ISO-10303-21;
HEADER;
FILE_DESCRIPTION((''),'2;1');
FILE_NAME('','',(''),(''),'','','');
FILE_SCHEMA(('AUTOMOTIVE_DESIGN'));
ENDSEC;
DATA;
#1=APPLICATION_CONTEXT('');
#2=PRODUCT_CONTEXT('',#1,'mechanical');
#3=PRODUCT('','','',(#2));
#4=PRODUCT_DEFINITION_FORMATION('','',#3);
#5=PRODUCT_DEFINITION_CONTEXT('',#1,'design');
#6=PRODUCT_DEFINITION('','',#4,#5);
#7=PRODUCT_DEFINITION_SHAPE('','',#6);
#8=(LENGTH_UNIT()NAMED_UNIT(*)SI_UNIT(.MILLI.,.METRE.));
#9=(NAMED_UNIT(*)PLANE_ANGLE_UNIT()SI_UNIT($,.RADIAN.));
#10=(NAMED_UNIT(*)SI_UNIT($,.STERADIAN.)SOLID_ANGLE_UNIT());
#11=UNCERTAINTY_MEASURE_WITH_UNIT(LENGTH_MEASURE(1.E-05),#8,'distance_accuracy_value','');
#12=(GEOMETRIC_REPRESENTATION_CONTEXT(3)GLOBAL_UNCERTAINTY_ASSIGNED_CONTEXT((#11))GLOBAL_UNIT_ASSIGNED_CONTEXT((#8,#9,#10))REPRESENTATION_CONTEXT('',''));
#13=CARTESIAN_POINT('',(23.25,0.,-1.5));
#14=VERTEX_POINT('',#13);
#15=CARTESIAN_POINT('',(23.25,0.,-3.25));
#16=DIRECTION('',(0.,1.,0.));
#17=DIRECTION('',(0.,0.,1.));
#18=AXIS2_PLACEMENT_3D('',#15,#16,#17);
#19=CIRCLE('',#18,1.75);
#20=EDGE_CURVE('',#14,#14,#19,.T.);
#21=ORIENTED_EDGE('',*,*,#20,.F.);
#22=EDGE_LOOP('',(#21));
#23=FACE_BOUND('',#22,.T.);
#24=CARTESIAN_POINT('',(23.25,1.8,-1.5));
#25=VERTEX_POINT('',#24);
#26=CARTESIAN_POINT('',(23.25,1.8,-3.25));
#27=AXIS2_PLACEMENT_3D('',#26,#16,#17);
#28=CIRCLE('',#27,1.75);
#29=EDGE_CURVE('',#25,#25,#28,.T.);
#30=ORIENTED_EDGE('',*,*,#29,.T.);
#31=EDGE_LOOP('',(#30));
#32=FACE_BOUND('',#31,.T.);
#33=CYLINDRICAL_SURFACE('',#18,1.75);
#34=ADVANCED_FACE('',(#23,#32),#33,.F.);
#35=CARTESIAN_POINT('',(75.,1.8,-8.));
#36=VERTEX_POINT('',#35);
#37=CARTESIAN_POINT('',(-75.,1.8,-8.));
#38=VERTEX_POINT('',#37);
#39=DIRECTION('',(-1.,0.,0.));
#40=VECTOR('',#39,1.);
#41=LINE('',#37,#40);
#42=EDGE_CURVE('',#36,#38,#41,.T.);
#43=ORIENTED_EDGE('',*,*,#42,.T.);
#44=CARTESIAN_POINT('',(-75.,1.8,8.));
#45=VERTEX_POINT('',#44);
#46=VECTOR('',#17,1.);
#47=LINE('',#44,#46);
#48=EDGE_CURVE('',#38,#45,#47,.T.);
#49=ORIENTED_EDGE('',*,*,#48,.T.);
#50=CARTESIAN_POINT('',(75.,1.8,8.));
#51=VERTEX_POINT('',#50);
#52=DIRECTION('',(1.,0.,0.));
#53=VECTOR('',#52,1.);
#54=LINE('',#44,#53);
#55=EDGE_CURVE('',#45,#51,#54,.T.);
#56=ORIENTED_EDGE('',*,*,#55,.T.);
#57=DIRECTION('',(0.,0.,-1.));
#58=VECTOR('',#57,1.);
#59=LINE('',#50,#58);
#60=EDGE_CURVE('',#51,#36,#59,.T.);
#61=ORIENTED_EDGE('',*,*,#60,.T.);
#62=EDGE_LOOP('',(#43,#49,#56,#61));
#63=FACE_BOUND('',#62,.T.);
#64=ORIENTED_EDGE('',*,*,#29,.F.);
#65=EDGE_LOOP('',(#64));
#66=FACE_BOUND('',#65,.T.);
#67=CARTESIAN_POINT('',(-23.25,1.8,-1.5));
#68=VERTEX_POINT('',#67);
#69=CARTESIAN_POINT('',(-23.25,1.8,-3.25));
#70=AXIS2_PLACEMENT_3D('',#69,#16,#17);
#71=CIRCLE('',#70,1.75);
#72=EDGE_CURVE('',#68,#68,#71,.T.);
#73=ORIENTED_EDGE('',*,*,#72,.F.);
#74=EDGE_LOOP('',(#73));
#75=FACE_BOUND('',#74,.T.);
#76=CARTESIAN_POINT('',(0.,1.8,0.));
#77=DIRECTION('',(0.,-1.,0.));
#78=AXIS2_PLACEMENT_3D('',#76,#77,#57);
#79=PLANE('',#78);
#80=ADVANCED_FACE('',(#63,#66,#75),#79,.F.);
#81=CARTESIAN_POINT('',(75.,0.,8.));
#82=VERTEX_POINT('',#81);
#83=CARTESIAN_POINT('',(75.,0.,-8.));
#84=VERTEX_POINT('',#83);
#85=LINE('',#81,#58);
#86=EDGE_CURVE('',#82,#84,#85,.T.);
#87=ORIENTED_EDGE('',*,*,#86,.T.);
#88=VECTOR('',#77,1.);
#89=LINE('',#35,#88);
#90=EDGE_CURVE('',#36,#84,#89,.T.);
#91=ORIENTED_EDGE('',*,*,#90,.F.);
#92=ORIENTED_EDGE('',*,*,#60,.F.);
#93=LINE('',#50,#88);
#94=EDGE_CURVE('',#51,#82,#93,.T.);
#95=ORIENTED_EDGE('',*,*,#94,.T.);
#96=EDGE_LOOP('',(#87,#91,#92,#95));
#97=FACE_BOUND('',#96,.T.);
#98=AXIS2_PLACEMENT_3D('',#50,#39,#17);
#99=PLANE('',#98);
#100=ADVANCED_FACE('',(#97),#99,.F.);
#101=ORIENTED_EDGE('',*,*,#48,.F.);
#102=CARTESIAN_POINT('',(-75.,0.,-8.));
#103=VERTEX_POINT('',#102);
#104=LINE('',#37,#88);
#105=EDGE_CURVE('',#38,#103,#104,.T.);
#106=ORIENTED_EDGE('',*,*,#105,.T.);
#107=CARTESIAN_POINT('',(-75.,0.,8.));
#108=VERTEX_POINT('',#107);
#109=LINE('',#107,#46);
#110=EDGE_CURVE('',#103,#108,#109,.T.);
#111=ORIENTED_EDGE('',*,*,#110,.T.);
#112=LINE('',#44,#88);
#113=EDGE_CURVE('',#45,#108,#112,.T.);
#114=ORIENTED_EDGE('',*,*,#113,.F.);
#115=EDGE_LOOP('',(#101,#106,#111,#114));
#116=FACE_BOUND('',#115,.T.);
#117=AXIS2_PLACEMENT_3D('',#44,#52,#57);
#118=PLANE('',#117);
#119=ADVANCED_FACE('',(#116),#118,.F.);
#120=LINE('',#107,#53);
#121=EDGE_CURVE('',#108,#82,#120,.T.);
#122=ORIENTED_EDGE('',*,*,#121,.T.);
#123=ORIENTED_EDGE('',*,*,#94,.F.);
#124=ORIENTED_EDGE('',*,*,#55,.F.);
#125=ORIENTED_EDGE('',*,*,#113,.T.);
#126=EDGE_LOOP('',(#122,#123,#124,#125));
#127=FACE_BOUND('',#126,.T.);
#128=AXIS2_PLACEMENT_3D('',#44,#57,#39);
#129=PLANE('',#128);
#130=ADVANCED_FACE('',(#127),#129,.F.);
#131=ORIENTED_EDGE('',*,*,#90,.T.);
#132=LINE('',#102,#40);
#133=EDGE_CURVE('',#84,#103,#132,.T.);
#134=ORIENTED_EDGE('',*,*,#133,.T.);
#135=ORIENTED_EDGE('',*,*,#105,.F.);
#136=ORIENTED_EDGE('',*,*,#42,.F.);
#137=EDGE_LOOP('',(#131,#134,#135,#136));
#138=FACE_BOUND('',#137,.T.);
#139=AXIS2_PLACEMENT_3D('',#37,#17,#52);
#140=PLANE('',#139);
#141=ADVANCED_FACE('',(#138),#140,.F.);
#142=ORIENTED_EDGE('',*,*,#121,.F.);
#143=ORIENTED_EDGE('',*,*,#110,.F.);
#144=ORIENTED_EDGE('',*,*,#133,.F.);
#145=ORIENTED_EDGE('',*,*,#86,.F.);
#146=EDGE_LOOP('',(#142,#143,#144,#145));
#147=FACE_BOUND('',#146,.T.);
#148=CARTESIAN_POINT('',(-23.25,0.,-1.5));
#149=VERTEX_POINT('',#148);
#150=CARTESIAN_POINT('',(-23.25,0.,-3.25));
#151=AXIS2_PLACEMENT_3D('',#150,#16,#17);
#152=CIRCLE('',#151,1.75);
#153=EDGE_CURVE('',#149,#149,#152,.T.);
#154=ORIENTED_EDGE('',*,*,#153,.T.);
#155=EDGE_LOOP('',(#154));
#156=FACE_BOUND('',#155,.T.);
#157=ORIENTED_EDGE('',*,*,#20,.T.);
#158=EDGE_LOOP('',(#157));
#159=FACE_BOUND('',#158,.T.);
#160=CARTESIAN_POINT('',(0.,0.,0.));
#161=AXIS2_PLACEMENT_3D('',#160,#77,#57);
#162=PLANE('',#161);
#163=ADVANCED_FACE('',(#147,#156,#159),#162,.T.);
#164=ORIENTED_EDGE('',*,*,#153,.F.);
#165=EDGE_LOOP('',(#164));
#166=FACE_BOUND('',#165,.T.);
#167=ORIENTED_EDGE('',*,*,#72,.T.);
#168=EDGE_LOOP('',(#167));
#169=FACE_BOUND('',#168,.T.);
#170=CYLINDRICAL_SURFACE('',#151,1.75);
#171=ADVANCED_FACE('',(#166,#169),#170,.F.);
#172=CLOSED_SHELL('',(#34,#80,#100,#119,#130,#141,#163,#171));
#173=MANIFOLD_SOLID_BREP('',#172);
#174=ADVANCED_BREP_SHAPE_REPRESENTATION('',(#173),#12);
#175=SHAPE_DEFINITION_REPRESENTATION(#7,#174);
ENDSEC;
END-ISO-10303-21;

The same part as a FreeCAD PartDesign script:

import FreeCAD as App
import Part
import Sketcher

V = App.Vector
Q = App.Units.Quantity


def add_polygon(sketch, points):
    """Adds a closed chain of lines whose ends are joined by coincident constraints."""
    first, n = sketch.GeometryCount, len(points)
    for a, b in zip(points, points[1:] + points[:1]):
        sketch.addGeometry(Part.LineSegment(App.Vector(*a, 0), App.Vector(*b, 0)), False)
    for i in range(n):
        sketch.addConstraint(Sketcher.Constraint("Coincident", first + i, 2, first + (i + 1) % n, 1))

doc = App.newDocument("Part")
body = doc.addObject("PartDesign::Body", "Body")

# Sketch on XZ plane
sketch1 = body.newObject("Sketcher::SketchObject", "Sketch")
sketch1.AttachmentSupport = (doc.getObject("XZ_Plane"), [""])
sketch1.MapMode = "FlatFace"
add_polygon(sketch1, [(-75, -8), (-75, 8), (75, 8), (75, -8)])  # lines 0-3
sketch1.addConstraint(Sketcher.Constraint("Vertical", 0))
sketch1.addConstraint(Sketcher.Constraint("Horizontal", 1))
sketch1.addConstraint(Sketcher.Constraint("Vertical", 2))
sketch1.addConstraint(Sketcher.Constraint("Horizontal", 3))
sketch1.addConstraint(Sketcher.Constraint("Symmetric", 0, 2, 2, 2, -1, 1))
sketch1.addConstraint(Sketcher.Constraint("DistanceX", 1, 1, 1, 2, Q("150 mm")))
sketch1.addConstraint(Sketcher.Constraint("DistanceY", 0, 1, 0, 2, Q("16 mm")))
pad1 = body.newObject("PartDesign::Pad", "Pad")
pad1.Profile = sketch1
pad1.Length = 1.8
pad1.Reversed = True

# Sketch on XZ plane
sketch2 = body.newObject("Sketcher::SketchObject", "Sketch001")
sketch2.AttachmentSupport = (doc.getObject("XZ_Plane"), [""])
sketch2.MapMode = "FlatFace"
sketch2.AttachmentOffset = App.Placement(V(0, 0, -1.8), App.Rotation())
sketch2.addGeometry(Part.Circle(V(-23.2, -3.2, 0), V(0, 0, 1), 1.8), False)
sketch2.addGeometry(Part.Circle(V(23.2, -3.2, 0), V(0, 0, 1), 1.8), False)
sketch2.addConstraint(Sketcher.Constraint("Equal", 0, 1))
sketch2.addConstraint(Sketcher.Constraint("Symmetric", 0, 3, 1, 3, -2))
sketch2.addConstraint(Sketcher.Constraint("Diameter", 0, Q("3.5 mm")))
sketch2.addConstraint(Sketcher.Constraint("DistanceX", 0, 3, 1, 3, Q("46.5 mm")))
sketch2.addConstraint(Sketcher.Constraint("DistanceY", 0, 3, -1, 1, Q("3.25 mm")))
pocket1 = body.newObject("PartDesign::Pocket", "Pocket")
pocket1.Profile = sketch2
pocket1.Type = "ThroughAll"
pocket1.Reversed = True

doc.recompute()
